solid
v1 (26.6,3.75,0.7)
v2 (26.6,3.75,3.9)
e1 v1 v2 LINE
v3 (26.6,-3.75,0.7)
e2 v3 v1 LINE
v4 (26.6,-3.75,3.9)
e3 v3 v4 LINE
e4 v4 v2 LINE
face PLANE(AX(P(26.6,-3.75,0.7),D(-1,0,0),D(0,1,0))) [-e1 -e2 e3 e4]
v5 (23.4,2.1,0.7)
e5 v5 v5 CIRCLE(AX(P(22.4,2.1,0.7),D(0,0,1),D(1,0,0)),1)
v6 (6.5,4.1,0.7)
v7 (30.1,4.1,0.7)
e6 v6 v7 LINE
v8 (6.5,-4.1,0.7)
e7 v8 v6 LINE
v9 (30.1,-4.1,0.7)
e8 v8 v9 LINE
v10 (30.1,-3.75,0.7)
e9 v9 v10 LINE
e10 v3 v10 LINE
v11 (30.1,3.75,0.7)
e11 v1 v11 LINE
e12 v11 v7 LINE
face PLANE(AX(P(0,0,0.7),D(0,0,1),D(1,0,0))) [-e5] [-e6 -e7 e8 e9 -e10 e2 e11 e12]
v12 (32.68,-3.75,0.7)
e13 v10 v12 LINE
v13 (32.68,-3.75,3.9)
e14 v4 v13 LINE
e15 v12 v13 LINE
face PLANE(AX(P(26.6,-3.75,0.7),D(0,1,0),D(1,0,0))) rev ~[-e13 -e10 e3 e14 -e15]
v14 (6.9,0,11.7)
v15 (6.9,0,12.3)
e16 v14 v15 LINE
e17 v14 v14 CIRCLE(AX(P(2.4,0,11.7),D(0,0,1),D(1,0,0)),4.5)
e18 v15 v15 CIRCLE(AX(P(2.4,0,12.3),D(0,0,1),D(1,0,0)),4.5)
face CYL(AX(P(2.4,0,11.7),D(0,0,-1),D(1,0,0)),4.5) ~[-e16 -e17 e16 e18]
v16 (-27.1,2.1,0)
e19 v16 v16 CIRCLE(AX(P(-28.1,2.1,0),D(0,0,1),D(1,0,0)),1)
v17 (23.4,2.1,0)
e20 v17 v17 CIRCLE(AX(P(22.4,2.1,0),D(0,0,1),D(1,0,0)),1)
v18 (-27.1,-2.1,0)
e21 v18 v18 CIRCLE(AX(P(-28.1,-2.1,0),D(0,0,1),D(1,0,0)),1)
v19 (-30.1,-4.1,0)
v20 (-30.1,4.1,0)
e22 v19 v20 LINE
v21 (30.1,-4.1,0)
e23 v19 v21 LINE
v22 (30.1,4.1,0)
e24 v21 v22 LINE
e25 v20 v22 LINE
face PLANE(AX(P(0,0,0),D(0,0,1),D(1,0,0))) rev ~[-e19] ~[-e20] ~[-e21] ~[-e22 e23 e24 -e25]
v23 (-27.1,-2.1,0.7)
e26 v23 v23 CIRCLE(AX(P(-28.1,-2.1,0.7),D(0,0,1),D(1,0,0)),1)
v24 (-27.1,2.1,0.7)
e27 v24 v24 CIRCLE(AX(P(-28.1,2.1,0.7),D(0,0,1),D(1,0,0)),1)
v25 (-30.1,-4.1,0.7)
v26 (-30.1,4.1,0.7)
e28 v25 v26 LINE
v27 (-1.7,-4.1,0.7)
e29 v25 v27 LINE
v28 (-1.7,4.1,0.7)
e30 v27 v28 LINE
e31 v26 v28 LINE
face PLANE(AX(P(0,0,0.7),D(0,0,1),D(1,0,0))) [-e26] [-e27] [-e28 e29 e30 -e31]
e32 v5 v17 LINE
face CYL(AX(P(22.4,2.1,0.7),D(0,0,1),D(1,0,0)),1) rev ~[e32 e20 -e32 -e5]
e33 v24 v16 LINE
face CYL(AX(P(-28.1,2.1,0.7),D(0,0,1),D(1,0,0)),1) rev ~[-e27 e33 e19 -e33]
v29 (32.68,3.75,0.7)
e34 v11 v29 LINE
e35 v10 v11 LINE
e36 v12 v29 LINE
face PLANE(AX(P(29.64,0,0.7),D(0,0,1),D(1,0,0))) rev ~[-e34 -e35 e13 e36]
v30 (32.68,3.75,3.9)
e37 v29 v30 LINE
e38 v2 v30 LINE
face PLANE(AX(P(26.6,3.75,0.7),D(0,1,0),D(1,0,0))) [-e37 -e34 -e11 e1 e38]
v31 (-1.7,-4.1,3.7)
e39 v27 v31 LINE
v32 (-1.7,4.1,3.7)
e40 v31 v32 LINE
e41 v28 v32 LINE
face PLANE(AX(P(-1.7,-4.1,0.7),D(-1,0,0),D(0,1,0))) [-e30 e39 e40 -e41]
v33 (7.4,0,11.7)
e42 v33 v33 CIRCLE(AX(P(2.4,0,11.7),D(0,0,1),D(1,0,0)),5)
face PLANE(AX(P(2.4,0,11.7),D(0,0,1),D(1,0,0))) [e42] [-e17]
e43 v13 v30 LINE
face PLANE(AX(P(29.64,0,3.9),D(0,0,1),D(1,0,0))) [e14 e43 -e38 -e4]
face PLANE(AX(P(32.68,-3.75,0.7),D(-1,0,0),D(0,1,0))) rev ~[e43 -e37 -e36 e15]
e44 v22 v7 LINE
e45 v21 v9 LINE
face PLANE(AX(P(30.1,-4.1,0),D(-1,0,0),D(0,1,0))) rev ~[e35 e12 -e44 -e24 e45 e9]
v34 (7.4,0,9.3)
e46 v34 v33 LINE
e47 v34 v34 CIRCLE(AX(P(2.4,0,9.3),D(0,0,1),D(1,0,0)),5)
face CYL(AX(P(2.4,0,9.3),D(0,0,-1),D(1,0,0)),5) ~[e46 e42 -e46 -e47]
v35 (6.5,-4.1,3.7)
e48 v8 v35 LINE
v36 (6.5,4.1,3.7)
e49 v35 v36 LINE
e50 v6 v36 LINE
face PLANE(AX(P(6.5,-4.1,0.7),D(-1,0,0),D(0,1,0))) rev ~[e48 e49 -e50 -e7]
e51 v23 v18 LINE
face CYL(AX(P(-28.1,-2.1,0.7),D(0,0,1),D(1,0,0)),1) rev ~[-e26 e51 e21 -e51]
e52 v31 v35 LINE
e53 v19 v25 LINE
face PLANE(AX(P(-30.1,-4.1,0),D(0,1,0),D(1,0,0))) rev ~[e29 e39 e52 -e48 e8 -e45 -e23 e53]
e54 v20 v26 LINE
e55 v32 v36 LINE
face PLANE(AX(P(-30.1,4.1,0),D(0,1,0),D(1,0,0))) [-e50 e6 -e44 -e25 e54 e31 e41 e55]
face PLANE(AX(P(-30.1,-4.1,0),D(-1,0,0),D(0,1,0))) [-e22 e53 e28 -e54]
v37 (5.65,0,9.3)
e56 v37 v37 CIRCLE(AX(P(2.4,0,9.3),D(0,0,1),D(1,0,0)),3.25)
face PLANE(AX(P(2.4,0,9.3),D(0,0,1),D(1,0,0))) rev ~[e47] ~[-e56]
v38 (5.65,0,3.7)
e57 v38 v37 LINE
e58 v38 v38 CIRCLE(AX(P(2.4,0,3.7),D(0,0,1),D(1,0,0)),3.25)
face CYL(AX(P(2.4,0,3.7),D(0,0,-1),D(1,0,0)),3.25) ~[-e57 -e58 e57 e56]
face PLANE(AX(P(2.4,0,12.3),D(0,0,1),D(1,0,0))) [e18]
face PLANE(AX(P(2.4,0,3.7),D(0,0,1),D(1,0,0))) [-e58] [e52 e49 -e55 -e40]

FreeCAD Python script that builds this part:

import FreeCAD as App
import Part
import Sketcher

V = App.Vector


def add_polygon(sketch, points):
    """Adds a closed chain of lines whose ends are joined by coincident constraints."""
    first, n = sketch.GeometryCount, len(points)
    for a, b in zip(points, points[1:] + points[:1]):
        sketch.addGeometry(Part.LineSegment(App.Vector(*a, 0), App.Vector(*b, 0)), False)
    for i in range(n):
        sketch.addConstraint(Sketcher.Constraint("Coincident", first + i, 2, first + (i + 1) % n, 1))

doc = App.newDocument("Part")
params = doc.addObject("Spreadsheet::Sheet", "Params")
for row, (alias, value) in enumerate([
    ("sketch1_width", "60.2 mm"),
    ("sketch1_height", "8.2 mm"),
    ("pad1_length", "0.7 mm"),
    ("sketch2_diameter", "2 mm"),
    ("sketch3_width", "8.2 mm"),
    ("pad2_length", "3 mm"),
    ("sketch4_diameter", "6.5 mm"),
    ("pad3_length", "5.6 mm"),
    ("sketch5_diameter", "10 mm"),
    ("pad4_length", "2.4 mm"),
    ("sketch6_diameter", "9 mm"),
    ("pad5_length", "0.6 mm"),
    ("sketch7_height", "7.5 mm"),
    ("sketch7_width", "6.08 mm"),
    ("pad6_length", "3.2 mm"),
], start=1):
    params.set(f"A{row}", alias)
    params.set(f"B{row}", "=" + value)
    params.setAlias(f"B{row}", alias)

body = doc.addObject("PartDesign::Body", "Body")

# Sketch on XY plane
sketch1 = body.newObject("Sketcher::SketchObject", "Sketch")
sketch1.AttachmentSupport = (doc.getObject("XY_Plane"), [""])
sketch1.MapMode = "FlatFace"
add_polygon(sketch1, [(-30, 4), (-30, -4), (30, -4), (30, 4)])  # lines 0-3
sketch1.addConstraint([
    Sketcher.Constraint("Vertical", 0),
    Sketcher.Constraint("Horizontal", 1),
    Sketcher.Constraint("Vertical", 2),
    Sketcher.Constraint("Horizontal", 3),
    Sketcher.Constraint("Symmetric", 0, 2, 2, 2, -1, 1),
    Sketcher.Constraint("DistanceX", 1, 1, 1, 2, 60.2),
    Sketcher.Constraint("DistanceY", 0, 2, 0, 1, 8.2),
])
sketch1.setExpression("Constraints[9]", "Params.sketch1_width")
sketch1.setExpression("Constraints[10]", "Params.sketch1_height")
pad1 = body.newObject("PartDesign::Pad", "Pad")
pad1.Profile = sketch1
pad1.setExpression("Length", "Params.pad1_length")

# Sketch on XY plane
sketch2 = body.newObject("Sketcher::SketchObject", "Sketch001")
sketch2.AttachmentSupport = (doc.getObject("XY_Plane"), [""])
sketch2.MapMode = "FlatFace"
sketch2.AttachmentOffset = App.Placement(V(0, 0, 0.7), App.Rotation())
sketch2.addGeometry([
    Part.Circle(V(-28.1, 2.1, 0), V(0, 0, 1), 1),
    Part.Circle(V(-28.1, -2.1, 0), V(0, 0, 1), 1),
    Part.Circle(V(22.4, 2.1, 0), V(0, 0, 1), 1),
], False)
sketch2.addConstraint([
    Sketcher.Constraint("Equal", 0, 1),
    Sketcher.Constraint("Equal", 1, 2),
    Sketcher.Constraint("Symmetric", 0, 3, 1, 3, -1),
    Sketcher.Constraint("Horizontal", 0, 3, 2, 3),
    Sketcher.Constraint("Diameter", 0, 2.0),
    Sketcher.Constraint("DistanceX", 0, 3, -1, 1, 28.1),
    Sketcher.Constraint("DistanceY", -1, 1, 0, 3, 2.1),
    Sketcher.Constraint("DistanceX", -1, 1, 2, 3, 22.4),
])
sketch2.setExpression("Constraints[4]", "Params.sketch2_diameter")
pocket1 = body.newObject("PartDesign::Pocket", "Pocket")
pocket1.Profile = sketch2
pocket1.Type = "ThroughAll"

# Sketch on XY plane
sketch3 = body.newObject("Sketcher::SketchObject", "Sketch002")
sketch3.AttachmentSupport = (doc.getObject("XY_Plane"), [""])
sketch3.MapMode = "FlatFace"
sketch3.AttachmentOffset = App.Placement(V(0, 0, 0.7), App.Rotation())
add_polygon(sketch3, [(-2, 4), (-2, -4), (6, -4), (6, 4)])  # lines 0-3
sketch3.addConstraint([
    Sketcher.Constraint("Vertical", 0),
    Sketcher.Constraint("Horizontal", 1),
    Sketcher.Constraint("Vertical", 2),
    Sketcher.Constraint("Horizontal", 3),
    Sketcher.Constraint("Equal", 3, 0),
    Sketcher.Constraint("DistanceX", 1, 1, 1, 2, 8.2),
    Sketcher.Constraint("DistanceX", 0, 2, -1, 1, 1.7),
    Sketcher.Constraint("DistanceY", 0, 2, -1, 1, 4.1),
])
sketch3.setExpression("Constraints[9]", "Params.sketch3_width")
pad2 = body.newObject("PartDesign::Pad", "Pad001")
pad2.Profile = sketch3
pad2.setExpression("Length", "Params.pad2_length")

# Sketch on XY plane
sketch4 = body.newObject("Sketcher::SketchObject", "Sketch003")
sketch4.AttachmentSupport = (doc.getObject("XY_Plane"), [""])
sketch4.MapMode = "FlatFace"
sketch4.AttachmentOffset = App.Placement(V(0, 0, 3.7), App.Rotation())
sketch4.addGeometry(Part.Circle(V(2.4, 0, 0), V(0, 0, 1), 3.2), False)
sketch4.addConstraint([
    Sketcher.Constraint("PointOnObject", 0, 3, -1),
    Sketcher.Constraint("Diameter", 0, 6.5),
    Sketcher.Constraint("DistanceX", -1, 1, 0, 3, 2.4),
])
sketch4.setExpression("Constraints[1]", "Params.sketch4_diameter")
pad3 = body.newObject("PartDesign::Pad", "Pad002")
pad3.Profile = sketch4
pad3.setExpression("Length", "Params.pad3_length")

# Sketch on XY plane
sketch5 = body.newObject("Sketcher::SketchObject", "Sketch004")
sketch5.AttachmentSupport = (doc.getObject("XY_Plane"), [""])
sketch5.MapMode = "FlatFace"
sketch5.AttachmentOffset = App.Placement(V(0, 0, 9.3), App.Rotation())
sketch5.addGeometry(Part.Circle(V(2, 0, 0), V(0, 0, 1), 5), False)
sketch5.addConstraint([
    Sketcher.Constraint("PointOnObject", 0, 3, -1),
    Sketcher.Constraint("Diameter", 0, 10.0),
    Sketcher.Constraint("DistanceX", -1, 1, 0, 3, 2.4),
])
sketch5.setExpression("Constraints[1]", "Params.sketch5_diameter")
pad4 = body.newObject("PartDesign::Pad", "Pad003")
pad4.Profile = sketch5
pad4.setExpression("Length", "Params.pad4_length")

# Sketch on XY plane
sketch6 = body.newObject("Sketcher::SketchObject", "Sketch005")
sketch6.AttachmentSupport = (doc.getObject("XY_Plane"), [""])
sketch6.MapMode = "FlatFace"
sketch6.AttachmentOffset = App.Placement(V(0, 0, 11.7), App.Rotation())
sketch6.addGeometry(Part.Circle(V(2.4, 0, 0), V(0, 0, 1), 4.5), False)
sketch6.addConstraint([
    Sketcher.Constraint("PointOnObject", 0, 3, -1),
    Sketcher.Constraint("Diameter", 0, 9.0),
    Sketcher.Constraint("DistanceX", -1, 1, 0, 3, 2.4),
])
sketch6.setExpression("Constraints[1]", "Params.sketch6_diameter")
pad5 = body.newObject("PartDesign::Pad", "Pad004")
pad5.Profile = sketch6
pad5.setExpression("Length", "Params.pad5_length")

# Sketch on XY plane
sketch7 = body.newObject("Sketcher::SketchObject", "Sketch006")
sketch7.AttachmentSupport = (doc.getObject("XY_Plane"), [""])
sketch7.MapMode = "FlatFace"
sketch7.AttachmentOffset = App.Placement(V(0, 0, 0.7), App.Rotation())
add_polygon(sketch7, [(27, 4), (27, -4), (33, -4), (33, 4)])  # lines 0-3
sketch7.addConstraint([
    Sketcher.Constraint("Vertical", 0),
    Sketcher.Constraint("Horizontal", 1),
    Sketcher.Constraint("Vertical", 2),
    Sketcher.Constraint("Horizontal", 3),
    Sketcher.Constraint("DistanceY", 0, 2, 0, 1, 7.5),
    Sketcher.Constraint("DistanceX", 1, 1, 1, 2, 6.08),
    Sketcher.Constraint("DistanceX", -1, 1, 0, 2, 26.6),
    Sketcher.Constraint("DistanceY", 0, 2, -1, 1, 3.75),
])
sketch7.setExpression("Constraints[8]", "Params.sketch7_height")
sketch7.setExpression("Constraints[9]", "Params.sketch7_width")
pad6 = body.newObject("PartDesign::Pad", "Pad005")
pad6.Profile = sketch7
pad6.setExpression("Length", "Params.pad6_length")

doc.recompute()
